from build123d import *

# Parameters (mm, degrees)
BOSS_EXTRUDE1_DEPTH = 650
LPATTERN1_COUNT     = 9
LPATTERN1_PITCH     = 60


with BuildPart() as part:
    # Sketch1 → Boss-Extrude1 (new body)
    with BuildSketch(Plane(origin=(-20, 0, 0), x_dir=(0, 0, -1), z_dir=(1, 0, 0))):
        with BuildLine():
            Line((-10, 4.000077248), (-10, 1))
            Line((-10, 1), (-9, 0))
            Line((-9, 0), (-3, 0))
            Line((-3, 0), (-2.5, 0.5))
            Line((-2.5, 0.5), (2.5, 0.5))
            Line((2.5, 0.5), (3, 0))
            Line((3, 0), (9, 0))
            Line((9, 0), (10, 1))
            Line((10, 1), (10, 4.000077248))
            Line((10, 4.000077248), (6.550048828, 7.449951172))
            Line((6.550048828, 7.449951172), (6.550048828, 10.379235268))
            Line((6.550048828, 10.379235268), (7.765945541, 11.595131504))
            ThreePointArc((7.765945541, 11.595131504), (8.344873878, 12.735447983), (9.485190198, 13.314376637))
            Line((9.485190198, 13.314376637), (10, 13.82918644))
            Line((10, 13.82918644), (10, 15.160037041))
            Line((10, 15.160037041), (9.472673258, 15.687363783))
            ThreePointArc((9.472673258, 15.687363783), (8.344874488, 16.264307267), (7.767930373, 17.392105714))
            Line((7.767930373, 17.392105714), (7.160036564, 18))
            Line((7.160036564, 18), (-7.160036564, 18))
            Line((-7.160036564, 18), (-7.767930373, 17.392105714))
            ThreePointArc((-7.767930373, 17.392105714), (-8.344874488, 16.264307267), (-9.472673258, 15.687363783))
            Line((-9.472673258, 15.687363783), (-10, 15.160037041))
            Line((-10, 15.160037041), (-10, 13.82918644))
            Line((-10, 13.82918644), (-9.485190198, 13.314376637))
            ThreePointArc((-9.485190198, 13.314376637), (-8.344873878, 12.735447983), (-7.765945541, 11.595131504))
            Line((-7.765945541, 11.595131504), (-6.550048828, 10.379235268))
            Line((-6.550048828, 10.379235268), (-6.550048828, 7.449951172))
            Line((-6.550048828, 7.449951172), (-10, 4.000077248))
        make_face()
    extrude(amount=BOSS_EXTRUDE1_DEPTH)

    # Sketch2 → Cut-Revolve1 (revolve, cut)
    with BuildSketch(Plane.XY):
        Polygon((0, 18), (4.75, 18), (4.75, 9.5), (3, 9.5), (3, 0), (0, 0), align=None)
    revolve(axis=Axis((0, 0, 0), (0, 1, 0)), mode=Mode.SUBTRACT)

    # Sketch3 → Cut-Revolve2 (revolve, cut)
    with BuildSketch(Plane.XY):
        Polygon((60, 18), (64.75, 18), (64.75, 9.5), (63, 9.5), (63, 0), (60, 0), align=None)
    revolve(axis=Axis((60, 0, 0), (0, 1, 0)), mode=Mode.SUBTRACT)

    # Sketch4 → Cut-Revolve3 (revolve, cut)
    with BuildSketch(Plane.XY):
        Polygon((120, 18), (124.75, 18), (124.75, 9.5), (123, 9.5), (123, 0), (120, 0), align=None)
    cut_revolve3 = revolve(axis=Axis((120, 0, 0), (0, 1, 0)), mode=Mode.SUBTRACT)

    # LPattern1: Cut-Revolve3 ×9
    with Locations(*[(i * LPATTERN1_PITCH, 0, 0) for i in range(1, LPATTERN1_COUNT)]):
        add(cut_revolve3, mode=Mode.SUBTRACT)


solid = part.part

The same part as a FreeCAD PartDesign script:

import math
import FreeCAD as App
import Part
import Sketcher

V = App.Vector
Q = App.Units.Quantity


def add_polygon(sketch, points):
    """Adds a closed chain of lines whose ends are joined by coincident constraints."""
    first, n = sketch.GeometryCount, len(points)
    for a, b in zip(points, points[1:] + points[:1]):
        sketch.addGeometry(Part.LineSegment(App.Vector(*a, 0), App.Vector(*b, 0)), False)
    for i in range(n):
        sketch.addConstraint(Sketcher.Constraint("Coincident", first + i, 2, first + (i + 1) % n, 1))

doc = App.newDocument("Part")
body = doc.addObject("PartDesign::Body", "Body")

# Sketch on YZ plane
sketch1 = body.newObject("Sketcher::SketchObject", "Sketch")
sketch1.AttachmentSupport = (doc.getObject("YZ_Plane"), [""])
sketch1.MapMode = "FlatFace"
sketch1.AttachmentOffset = App.Placement(V(0, 0, -20), App.Rotation())
sketch1.addGeometry([
    Part.LineSegment(V(4.000077, 10, 0), V(1, 10, 0)),  # 0
    Part.LineSegment(V(1, 10, 0), V(0, 9, 0)),  # 1
    Part.LineSegment(V(0, 9, 0), V(0, 3, 0)),  # 2
    Part.LineSegment(V(0, 3, 0), V(0.5, 2.5, 0)),  # 3
    Part.LineSegment(V(0.5, 2.5, 0), V(0.5, -2.5, 0)),  # 4
    Part.LineSegment(V(0.5, -2.5, 0), V(0, -3, 0)),  # 5
    Part.LineSegment(V(0, -3, 0), V(0, -9, 0)),  # 6
    Part.LineSegment(V(0, -9, 0), V(1, -10, 0)),  # 7
    Part.LineSegment(V(1, -10, 0), V(4.000077, -10, 0)),  # 8
    Part.LineSegment(V(4.000077, -10, 0), V(7.449951, -6.550049, 0)),  # 9
    Part.LineSegment(V(7.449951, -6.550049, 0), V(10.379235, -6.550049, 0)),  # 10
    Part.LineSegment(V(10.379235, -6.550049, 0), V(11.595132, -7.765946, 0)),  # 11
    Part.ArcOfCircle(Part.Circle(V(11.278809, -9.801514, 0), V(0, 0, 1), 2.059999), math.radians(8.833008), math.radians(81.167008)),  # 12
    Part.LineSegment(V(13.314377, -9.48519, 0), V(13.829186, -10, 0)),  # 13
    Part.LineSegment(V(13.829186, -10, 0), V(15.160037, -10, 0)),  # 14
    Part.LineSegment(V(15.160037, -10, 0), V(15.687364, -9.472673, 0)),  # 15
    Part.ArcOfCircle(Part.Circle(V(17.720947, -9.801514, 0), V(0, 0, 1), 2.059999), math.radians(99.185529), math.radians(170.814503)),  # 16
    Part.LineSegment(V(17.392106, -7.76793, 0), V(18, -7.160037, 0)),  # 17
    Part.LineSegment(V(18, -7.160037, 0), V(18, 7.160037, 0)),  # 18
    Part.LineSegment(V(18, 7.160037, 0), V(17.392106, 7.76793, 0)),  # 19
    Part.ArcOfCircle(Part.Circle(V(17.720947, 9.801514, 0), V(0, 0, 1), 2.059999), math.radians(-170.814503), math.radians(-99.185529)),  # 20
    Part.LineSegment(V(15.687364, 9.472673, 0), V(15.160037, 10, 0)),  # 21
    Part.LineSegment(V(15.160037, 10, 0), V(13.829186, 10, 0)),  # 22
    Part.LineSegment(V(13.829186, 10, 0), V(13.314377, 9.48519, 0)),  # 23
    Part.ArcOfCircle(Part.Circle(V(11.278809, 9.801514, 0), V(0, 0, 1), 2.059999), math.radians(-81.167008), math.radians(-8.833008)),  # 24
    Part.LineSegment(V(11.595132, 7.765946, 0), V(10.379235, 6.550049, 0)),  # 25
    Part.LineSegment(V(10.379235, 6.550049, 0), V(7.449951, 6.550049, 0)),  # 26
    Part.LineSegment(V(7.449951, 6.550049, 0), V(4.000077, 10, 0)),  # 27
], False)
sketch1.addConstraint([
    Sketcher.Constraint("Coincident", 0, 2, 1, 1),
    Sketcher.Constraint("Coincident", 1, 2, 2, 1),
    Sketcher.Constraint("Coincident", 2, 2, 3, 1),
    Sketcher.Constraint("Coincident", 3, 2, 4, 1),
    Sketcher.Constraint("Coincident", 4, 2, 5, 1),
    Sketcher.Constraint("Coincident", 5, 2, 6, 1),
    Sketcher.Constraint("Coincident", 6, 2, 7, 1),
    Sketcher.Constraint("Coincident", 7, 2, 8, 1),
    Sketcher.Constraint("Coincident", 8, 2, 9, 1),
    Sketcher.Constraint("Coincident", 9, 2, 10, 1),
    Sketcher.Constraint("Coincident", 10, 2, 11, 1),
    Sketcher.Constraint("Coincident", 11, 2, 12, 2),
    Sketcher.Constraint("Coincident", 12, 1, 13, 1),
    Sketcher.Constraint("Coincident", 13, 2, 14, 1),
    Sketcher.Constraint("Coincident", 14, 2, 15, 1),
    Sketcher.Constraint("Coincident", 15, 2, 16, 2),
    Sketcher.Constraint("Coincident", 16, 1, 17, 1),
    Sketcher.Constraint("Coincident", 17, 2, 18, 1),
    Sketcher.Constraint("Coincident", 18, 2, 19, 1),
    Sketcher.Constraint("Coincident", 19, 2, 20, 2),
    Sketcher.Constraint("Coincident", 20, 1, 21, 1),
    Sketcher.Constraint("Coincident", 21, 2, 22, 1),
    Sketcher.Constraint("Coincident", 22, 2, 23, 1),
    Sketcher.Constraint("Coincident", 23, 2, 24, 2),
    Sketcher.Constraint("Coincident", 24, 1, 25, 1),
    Sketcher.Constraint("Coincident", 25, 2, 26, 1),
    Sketcher.Constraint("Coincident", 26, 2, 27, 1),
    Sketcher.Constraint("Coincident", 27, 2, 0, 1),
    Sketcher.Constraint("Horizontal", 0),
    Sketcher.Constraint("Vertical", 2),
    Sketcher.Constraint("Vertical", 4),
    Sketcher.Constraint("Vertical", 6),
    Sketcher.Constraint("Horizontal", 8),
    Sketcher.Constraint("Horizontal", 10),
    Sketcher.Constraint("Horizontal", 14),
    Sketcher.Constraint("Vertical", 18),
    Sketcher.Constraint("Horizontal", 22),
    Sketcher.Constraint("Horizontal", 26),
    Sketcher.Constraint("PointOnObject", 1, 2, -2),
    Sketcher.Constraint("PointOnObject", 5, 2, -2),
    Sketcher.Constraint("DistanceY", 2, 2, 2, 1, Q("6 mm")),
    Sketcher.Constraint("DistanceY", 4, 2, 4, 1, Q("5 mm")),
    Sketcher.Constraint("DistanceY", 6, 2, 6, 1, Q("6 mm")),
    Sketcher.Constraint("Radius", 12, Q("2.059999 mm")),
    Sketcher.Constraint("Radius", 16, Q("2.059999 mm")),
    Sketcher.Constraint("Radius", 20, Q("2.059999 mm")),
    Sketcher.Constraint("Radius", 24, Q("2.059999 mm")),
    Sketcher.Constraint("DistanceX", -1, 1, 0, 2, Q("1 mm")),
    Sketcher.Constraint("DistanceY", -1, 1, 0, 2, Q("10 mm")),
    Sketcher.Constraint("DistanceY", -1, 1, 1, 2, Q("9 mm")),
    Sketcher.Constraint("DistanceY", 5, 2, -1, 1, Q("3 mm")),
    Sketcher.Constraint("DistanceX", -1, 1, 7, 2, Q("1 mm")),
    Sketcher.Constraint("DistanceY", 7, 2, -1, 1, Q("10 mm")),
    Sketcher.Constraint("DistanceY", 13, 2, -1, 1, Q("10 mm")),
    Sketcher.Constraint("DistanceX", -1, 1, 17, 2, Q("18 mm")),
    Sketcher.Constraint("DistanceY", -1, 1, 21, 2, Q("10 mm")),
    Sketcher.Constraint("DistanceX", -1, 1, 3, 2, Q("0.5 mm")),
    Sketcher.Constraint("DistanceY", -1, 1, 3, 2, Q("2.5 mm")),
    Sketcher.Constraint("DistanceX", 14, 1, 14, 2, Q("1.330851 mm")),
    Sketcher.Constraint("DistanceX", 22, 2, 22, 1, Q("1.330851 mm")),
    Sketcher.Constraint("DistanceX", 25, 2, 21, 2, Q("4.780802 mm")),
    Sketcher.Constraint("Distance", 13, Q("0.728051 mm")),
    Sketcher.Constraint("Distance", 23, Q("0.728051 mm")),
    Sketcher.Constraint("DistanceX", 0, 2, 0, 1, Q("3.000077 mm")),
    Sketcher.Constraint("DistanceX", 8, 1, 8, 2, Q("3.000077 mm")),
    Sketcher.Constraint("DistanceX", 10, 1, 10, 2, Q("2.929284 mm")),
    Sketcher.Constraint("DistanceX", 26, 2, 26, 1, Q("2.929284 mm")),
    Sketcher.Constraint("DistanceY", 18, 1, 18, 2, Q("14.320073 mm")),
    Sketcher.Constraint("DistanceX", -1, 1, 12, 3, Q("11.278809 mm")),
    Sketcher.Constraint("DistanceX", -1, 1, 24, 3, Q("11.278809 mm")),
    Sketcher.Constraint("DistanceX", -1, 1, 9, 2, Q("7.449951 mm")),
    Sketcher.Constraint("DistanceY", 9, 2, -1, 1, Q("6.550049 mm")),
    Sketcher.Constraint("DistanceX", -1, 1, 11, 2, Q("11.595132 mm")),
    Sketcher.Constraint("DistanceY", 12, 1, -1, 1, Q("9.48519 mm")),
    Sketcher.Constraint("DistanceY", 16, 1, -1, 1, Q("7.76793 mm")),
    Sketcher.Constraint("DistanceY", -1, 1, 19, 2, Q("7.76793 mm")),
    Sketcher.Constraint("DistanceY", -1, 1, 23, 2, Q("9.48519 mm")),
    Sketcher.Constraint("DistanceX", -1, 1, 24, 1, Q("11.595132 mm")),
    Sketcher.Constraint("DistanceY", -1, 1, 25, 2, Q("6.550049 mm")),
    Sketcher.Constraint("DistanceX", -1, 1, 26, 2, Q("7.449951 mm")),
    Sketcher.Constraint("DistanceX", 12, 3, 16, 3, Q("6.442139 mm")),
    Sketcher.Constraint("DistanceX", 12, 3, 20, 3, Q("6.442139 mm")),
    Sketcher.Constraint("DistanceY", 16, 3, 11, 2, Q("2.035568 mm")),
    Sketcher.Constraint("DistanceX", 12, 3, 12, 1, Q("2.035568 mm")),
    Sketcher.Constraint("DistanceY", 16, 3, 15, 2, Q("0.32884 mm")),
    Sketcher.Constraint("DistanceX", 19, 2, 20, 3, Q("0.328842 mm")),
    Sketcher.Constraint("DistanceY", 20, 1, 20, 3, Q("0.32884 mm")),
    Sketcher.Constraint("Distance", 17, Q("0.859692 mm")),
])
pad1 = body.newObject("PartDesign::Pad", "Pad")
pad1.Profile = sketch1
pad1.Length = 650

# Sketch on XY plane
sketch2 = body.newObject("Sketcher::SketchObject", "Sketch001")
sketch2.AttachmentSupport = (doc.getObject("XY_Plane"), [""])
sketch2.MapMode = "FlatFace"
add_polygon(sketch2, [(4.8, 18), (0, 18), (0, 0), (3, 0), (3, 9.5), (4.8, 9.5)])  # lines 0-5
sketch2.addConstraint([
    Sketcher.Constraint("Horizontal", 0),
    Sketcher.Constraint("Vertical", 1),
    Sketcher.Constraint("Horizontal", 2),
    Sketcher.Constraint("Vertical", 3),
    Sketcher.Constraint("Horizontal", 4),
    Sketcher.Constraint("Vertical", 5),
    Sketcher.Constraint("Coincident", 1, 2, -1, 1),
    Sketcher.Constraint("DistanceX", 2, 1, 2, 2, Q("3 mm")),
    Sketcher.Constraint("DistanceY", 1, 2, 1, 1, Q("18 mm")),
    Sketcher.Constraint("DistanceY", 3, 1, 3, 2, Q("9.5 mm")),
    Sketcher.Constraint("DistanceX", 0, 2, 0, 1, Q("4.75 mm")),
])
groove = body.newObject("PartDesign::Groove", "Groove")
groove.Profile = sketch2
groove.ReferenceAxis = (sketch2, ["V_Axis"])
groove.Angle = 360

# Sketch on XY plane
sketch3 = body.newObject("Sketcher::SketchObject", "Sketch002")
sketch3.AttachmentSupport = (doc.getObject("XY_Plane"), [""])
sketch3.MapMode = "FlatFace"
add_polygon(sketch3, [(64.8, 18), (60, 18), (60, 0), (63, 0), (63, 9.5), (64.8, 9.5)])  # lines 0-5
sketch3.addGeometry(Part.LineSegment(V(60, 0, 0), V(60, 18, 0)), True)  # axis
sketch3.addConstraint([
    Sketcher.Constraint("Horizontal", 0),
    Sketcher.Constraint("Vertical", 1),
    Sketcher.Constraint("Horizontal", 2),
    Sketcher.Constraint("Vertical", 3),
    Sketcher.Constraint("Horizontal", 4),
    Sketcher.Constraint("Vertical", 5),
    Sketcher.Constraint("Vertical", 6),
    Sketcher.Constraint("Coincident", 6, 1, 1, 2),
    Sketcher.Constraint("PointOnObject", 1, 2, -1),
    Sketcher.Constraint("Horizontal", 5, 2, 6, 2),
    Sketcher.Constraint("DistanceX", 2, 1, 2, 2, Q("3 mm")),
    Sketcher.Constraint("DistanceY", 1, 2, 1, 1, Q("18 mm")),
    Sketcher.Constraint("DistanceY", 3, 1, 3, 2, Q("9.5 mm")),
    Sketcher.Constraint("DistanceX", -1, 1, 0, 2, Q("60 mm")),
    Sketcher.Constraint("DistanceX", 0, 2, 0, 1, Q("4.75 mm")),
])
groove2 = body.newObject("PartDesign::Groove", "Groove001")
groove2.Profile = sketch3
groove2.ReferenceAxis = (sketch3, ["Axis0"])
groove2.Angle = 360

# Sketch on XY plane
sketch4 = body.newObject("Sketcher::SketchObject", "Sketch003")
sketch4.AttachmentSupport = (doc.getObject("XY_Plane"), [""])
sketch4.MapMode = "FlatFace"
add_polygon(sketch4, [(124.8, 18), (120, 18), (120, 0), (123, 0), (123, 9.5), (124.8, 9.5)])  # lines 0-5
sketch4.addGeometry(Part.LineSegment(V(120, 0, 0), V(120, 18, 0)), True)  # axis
sketch4.addConstraint([
    Sketcher.Constraint("Horizontal", 0),
    Sketcher.Constraint("Vertical", 1),
    Sketcher.Constraint("Horizontal", 2),
    Sketcher.Constraint("Vertical", 3),
    Sketcher.Constraint("Horizontal", 4),
    Sketcher.Constraint("Vertical", 5),
    Sketcher.Constraint("Vertical", 6),
    Sketcher.Constraint("Coincident", 6, 1, 1, 2),
    Sketcher.Constraint("PointOnObject", 1, 2, -1),
    Sketcher.Constraint("Horizontal", 5, 2, 6, 2),
    Sketcher.Constraint("DistanceX", 2, 1, 2, 2, Q("3 mm")),
    Sketcher.Constraint("DistanceY", 1, 2, 1, 1, Q("18 mm")),
    Sketcher.Constraint("DistanceY", 3, 1, 3, 2, Q("9.5 mm")),
    Sketcher.Constraint("DistanceX", -1, 1, 0, 2, Q("120 mm")),
    Sketcher.Constraint("DistanceX", 0, 2, 0, 1, Q("4.75 mm")),
])
groove3 = body.newObject("PartDesign::Groove", "Groove002")
groove3.Profile = sketch4
groove3.ReferenceAxis = (sketch4, ["Axis0"])
groove3.Angle = 360
doc.recompute()

linearpattern = body.newObject("PartDesign::LinearPattern", "LinearPattern")
linearpattern.Originals = [groove3]
linearpattern.Direction = (doc.getObject("X_Axis"), [""])
linearpattern.Mode = "offset"
linearpattern.Offset = 60
linearpattern.Occurrences = 9
body.Tip = linearpattern

doc.recompute()
